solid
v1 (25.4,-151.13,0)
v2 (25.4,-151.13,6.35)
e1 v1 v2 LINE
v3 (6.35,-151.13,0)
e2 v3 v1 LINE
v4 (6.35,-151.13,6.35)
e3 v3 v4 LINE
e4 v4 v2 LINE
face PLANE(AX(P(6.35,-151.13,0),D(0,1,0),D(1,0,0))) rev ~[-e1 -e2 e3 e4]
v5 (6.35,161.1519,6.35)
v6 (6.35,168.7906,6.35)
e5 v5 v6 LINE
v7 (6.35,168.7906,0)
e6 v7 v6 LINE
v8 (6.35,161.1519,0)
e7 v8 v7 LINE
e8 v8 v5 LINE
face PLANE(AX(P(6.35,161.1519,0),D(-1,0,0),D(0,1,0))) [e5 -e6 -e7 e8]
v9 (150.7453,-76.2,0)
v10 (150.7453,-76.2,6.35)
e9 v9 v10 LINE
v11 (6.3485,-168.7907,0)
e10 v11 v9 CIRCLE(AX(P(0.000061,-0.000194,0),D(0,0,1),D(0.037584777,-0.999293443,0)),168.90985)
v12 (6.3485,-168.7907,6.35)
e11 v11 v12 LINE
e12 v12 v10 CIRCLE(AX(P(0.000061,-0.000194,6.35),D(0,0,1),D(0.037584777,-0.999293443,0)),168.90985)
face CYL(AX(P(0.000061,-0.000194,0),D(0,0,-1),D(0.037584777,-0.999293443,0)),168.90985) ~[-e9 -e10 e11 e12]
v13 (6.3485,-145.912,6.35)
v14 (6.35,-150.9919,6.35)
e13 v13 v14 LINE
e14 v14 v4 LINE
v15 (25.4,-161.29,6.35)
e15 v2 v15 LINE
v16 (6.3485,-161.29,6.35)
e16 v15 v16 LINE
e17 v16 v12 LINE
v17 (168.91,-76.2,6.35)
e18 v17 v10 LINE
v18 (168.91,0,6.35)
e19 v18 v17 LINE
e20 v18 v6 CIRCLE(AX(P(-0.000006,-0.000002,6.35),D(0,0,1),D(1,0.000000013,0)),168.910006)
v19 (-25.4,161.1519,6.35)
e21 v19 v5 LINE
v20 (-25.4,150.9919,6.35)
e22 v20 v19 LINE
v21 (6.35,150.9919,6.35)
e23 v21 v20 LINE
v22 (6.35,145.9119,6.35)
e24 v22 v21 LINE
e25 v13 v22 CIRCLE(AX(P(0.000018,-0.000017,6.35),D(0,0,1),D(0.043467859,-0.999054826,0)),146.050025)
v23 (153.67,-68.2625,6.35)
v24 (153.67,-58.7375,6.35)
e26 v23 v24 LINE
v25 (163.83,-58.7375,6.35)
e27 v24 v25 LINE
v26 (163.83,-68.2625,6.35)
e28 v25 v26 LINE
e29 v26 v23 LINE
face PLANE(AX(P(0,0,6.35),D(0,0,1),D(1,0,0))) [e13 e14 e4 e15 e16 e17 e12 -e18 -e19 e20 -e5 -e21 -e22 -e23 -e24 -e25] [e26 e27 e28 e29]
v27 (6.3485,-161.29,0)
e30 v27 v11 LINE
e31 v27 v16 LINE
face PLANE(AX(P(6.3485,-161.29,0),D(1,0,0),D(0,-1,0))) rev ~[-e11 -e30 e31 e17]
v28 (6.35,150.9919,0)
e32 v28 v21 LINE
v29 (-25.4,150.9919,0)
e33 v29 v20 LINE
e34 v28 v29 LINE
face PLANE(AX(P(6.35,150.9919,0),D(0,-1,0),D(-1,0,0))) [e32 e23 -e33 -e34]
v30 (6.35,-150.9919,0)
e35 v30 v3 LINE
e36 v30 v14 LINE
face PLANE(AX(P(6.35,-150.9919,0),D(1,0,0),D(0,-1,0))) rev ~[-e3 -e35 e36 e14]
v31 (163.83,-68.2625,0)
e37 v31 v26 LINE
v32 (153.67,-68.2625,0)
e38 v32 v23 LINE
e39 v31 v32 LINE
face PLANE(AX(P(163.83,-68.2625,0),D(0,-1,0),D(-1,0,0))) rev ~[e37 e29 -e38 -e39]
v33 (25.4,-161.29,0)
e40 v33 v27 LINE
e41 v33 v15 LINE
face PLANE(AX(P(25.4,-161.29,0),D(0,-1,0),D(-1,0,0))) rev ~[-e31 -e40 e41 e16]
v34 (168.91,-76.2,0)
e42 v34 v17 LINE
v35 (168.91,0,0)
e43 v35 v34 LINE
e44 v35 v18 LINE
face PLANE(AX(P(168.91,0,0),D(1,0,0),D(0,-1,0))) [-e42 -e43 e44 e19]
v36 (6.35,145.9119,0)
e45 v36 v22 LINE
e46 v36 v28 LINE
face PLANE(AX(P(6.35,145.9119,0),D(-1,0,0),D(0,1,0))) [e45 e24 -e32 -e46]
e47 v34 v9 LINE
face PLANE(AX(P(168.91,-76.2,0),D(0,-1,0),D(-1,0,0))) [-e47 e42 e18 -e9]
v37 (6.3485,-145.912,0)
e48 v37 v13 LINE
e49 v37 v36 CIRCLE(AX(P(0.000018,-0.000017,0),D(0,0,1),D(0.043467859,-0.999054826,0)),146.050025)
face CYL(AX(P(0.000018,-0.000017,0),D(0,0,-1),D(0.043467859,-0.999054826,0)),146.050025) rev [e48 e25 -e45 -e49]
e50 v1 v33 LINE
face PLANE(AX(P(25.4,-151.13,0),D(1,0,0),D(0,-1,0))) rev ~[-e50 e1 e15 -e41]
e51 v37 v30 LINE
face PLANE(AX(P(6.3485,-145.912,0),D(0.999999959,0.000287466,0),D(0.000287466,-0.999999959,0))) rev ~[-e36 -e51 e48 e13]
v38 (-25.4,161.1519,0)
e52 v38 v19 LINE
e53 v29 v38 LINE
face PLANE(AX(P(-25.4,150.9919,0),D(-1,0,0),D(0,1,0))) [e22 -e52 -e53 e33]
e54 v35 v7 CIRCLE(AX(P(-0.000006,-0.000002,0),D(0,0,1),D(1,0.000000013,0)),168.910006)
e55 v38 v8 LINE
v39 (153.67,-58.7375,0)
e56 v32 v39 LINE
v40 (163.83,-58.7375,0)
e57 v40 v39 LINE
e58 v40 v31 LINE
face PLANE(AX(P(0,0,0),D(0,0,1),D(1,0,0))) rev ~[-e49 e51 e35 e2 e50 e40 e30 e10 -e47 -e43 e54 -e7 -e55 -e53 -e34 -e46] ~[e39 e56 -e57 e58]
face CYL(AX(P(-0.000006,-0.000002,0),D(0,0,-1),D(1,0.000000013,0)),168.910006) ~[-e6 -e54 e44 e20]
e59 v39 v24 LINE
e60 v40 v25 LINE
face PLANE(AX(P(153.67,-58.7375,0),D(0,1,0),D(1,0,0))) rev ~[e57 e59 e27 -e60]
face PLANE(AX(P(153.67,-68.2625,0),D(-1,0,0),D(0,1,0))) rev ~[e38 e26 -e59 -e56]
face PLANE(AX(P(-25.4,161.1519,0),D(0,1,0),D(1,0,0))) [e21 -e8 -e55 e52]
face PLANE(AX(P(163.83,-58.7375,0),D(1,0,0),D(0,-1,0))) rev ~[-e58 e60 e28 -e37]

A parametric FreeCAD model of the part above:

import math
import FreeCAD as App
import Part
import Sketcher
Q = App.Units.Quantity

doc = App.newDocument("Part")
params = doc.addObject("Spreadsheet::Sheet", "Params")
for row, (alias, value) in enumerate([
    ("sketch1_height", "3 in"),
    ("sketch1_radius", "5.75 in"),
    ("sketch1_width", "0.4 in"),
    ("sketch1_height2", "0.2 in"),
    ("sketch1_length", "0.2 in"),
    ("pad1_length", "0.25 in"),
], start=1):
    params.set(f"A{row}", alias)
    params.set(f"B{row}", "=" + value)
    params.setAlias(f"B{row}", alias)

body = doc.addObject("PartDesign::Body", "Body")

# Sketch on XY plane
sketch1 = doc.addObject("Sketcher::SketchObject", "Sketch")
body.addObject(sketch1)
sketch1.AttachmentSupport = (doc.XY_Plane, [""])
sketch1.MapMode = "FlatFace"
sketch1.addGeometry([
    Part.ArcOfCircle(Part.Circle(App.Vector(0, 0, 0), App.Vector(0, 0, 1), 146.050043), math.radians(-87.508683), math.radians(87.508094)),  # 0
    Part.LineSegment(App.Vector(6.3485, -145.912, 0), App.Vector(6.34996, -150.9919, 0)),  # 1
    Part.LineSegment(App.Vector(6.35, -150.9919, 0), App.Vector(6.35, -151.13, 0)),  # 2
    Part.LineSegment(App.Vector(6.35, -151.13, 0), App.Vector(25.4, -151.13, 0)),  # 3
    Part.LineSegment(App.Vector(25.4, -151.13, 0), App.Vector(25.4, -161.29, 0)),  # 4
    Part.LineSegment(App.Vector(25.4, -161.29, 0), App.Vector(6.3485, -161.29, 0)),  # 5
    Part.LineSegment(App.Vector(6.3485, -161.29, 0), App.Vector(6.3485, -168.7907, 0)),  # 6
    Part.ArcOfCircle(Part.Circle(App.Vector(0, 0, 0), App.Vector(0, 0, 1), 168.91), math.radians(-87.846025), math.radians(-26.816068)),  # 7
    Part.LineSegment(App.Vector(150.7453, -76.2, 0), App.Vector(168.91, -76.2, 0)),  # 8
    Part.LineSegment(App.Vector(168.91, -76.2, 0), App.Vector(168.91, 0, 0)),  # 9
    Part.ArcOfCircle(Part.Circle(App.Vector(0, 0, 0), App.Vector(0, 0, 1), 168.91), math.radians(0), math.radians(87.845516)),  # 10
    Part.LineSegment(App.Vector(6.35, 168.7906, 0), App.Vector(6.35, 161.1519, 0)),  # 11
    Part.LineSegment(App.Vector(6.35, 161.1519, 0), App.Vector(-25.4, 161.1519, 0)),  # 12
    Part.LineSegment(App.Vector(-25.4, 161.1519, 0), App.Vector(-25.4, 150.9919, 0)),  # 13
    Part.LineSegment(App.Vector(-25.4, 150.9919, 0), App.Vector(6.35, 150.9919, 0)),  # 14
    Part.LineSegment(App.Vector(6.35, 150.9919, 0), App.Vector(6.35, 145.9119, 0)),  # 15
    Part.LineSegment(App.Vector(153.67, -58.7375, 0), App.Vector(163.83, -58.7375, 0)),  # 16
    Part.LineSegment(App.Vector(163.83, -58.7375, 0), App.Vector(163.83, -68.2625, 0)),  # 17
    Part.LineSegment(App.Vector(163.83, -68.2625, 0), App.Vector(153.67, -68.2625, 0)),  # 18
    Part.LineSegment(App.Vector(153.67, -68.2625, 0), App.Vector(153.67, -58.7375, 0)),  # 19
], False)
sketch1.addConstraint([
    Sketcher.Constraint("Coincident", 0, 1, 1, 1),
    Sketcher.Constraint("Coincident", 1, 2, 2, 1),
    Sketcher.Constraint("Coincident", 2, 2, 3, 1),
    Sketcher.Constraint("Coincident", 3, 2, 4, 1),
    Sketcher.Constraint("Coincident", 4, 2, 5, 1),
    Sketcher.Constraint("Coincident", 5, 2, 6, 1),
    Sketcher.Constraint("Coincident", 6, 2, 7, 1),
    Sketcher.Constraint("Coincident", 7, 2, 8, 1),
    Sketcher.Constraint("Coincident", 8, 2, 9, 1),
    Sketcher.Constraint("Tangent", 9, 2, 10, 1),
    Sketcher.Constraint("Coincident", 10, 2, 11, 1),
    Sketcher.Constraint("Coincident", 11, 2, 12, 1),
    Sketcher.Constraint("Coincident", 12, 2, 13, 1),
    Sketcher.Constraint("Coincident", 13, 2, 14, 1),
    Sketcher.Constraint("Coincident", 14, 2, 15, 1),
    Sketcher.Constraint("Coincident", 15, 2, 0, 2),
    Sketcher.Constraint("Coincident", 16, 2, 17, 1),
    Sketcher.Constraint("Coincident", 17, 2, 18, 1),
    Sketcher.Constraint("Coincident", 18, 2, 19, 1),
    Sketcher.Constraint("Coincident", 19, 2, 16, 1),
    Sketcher.Constraint("Vertical", 2),
    Sketcher.Constraint("Horizontal", 3),
    Sketcher.Constraint("Vertical", 4),
    Sketcher.Constraint("Horizontal", 5),
    Sketcher.Constraint("Vertical", 6),
    Sketcher.Constraint("Horizontal", 8),
    Sketcher.Constraint("Vertical", 9),
    Sketcher.Constraint("Vertical", 11),
    Sketcher.Constraint("Horizontal", 12),
    Sketcher.Constraint("Vertical", 13),
    Sketcher.Constraint("Horizontal", 14),
    Sketcher.Constraint("Vertical", 15),
    Sketcher.Constraint("Horizontal", 16),
    Sketcher.Constraint("Vertical", 17),
    Sketcher.Constraint("Horizontal", 18),
    Sketcher.Constraint("Vertical", 19),
    Sketcher.Constraint("Coincident", 0, 3, -1, 1),
    Sketcher.Constraint("Coincident", 7, 3, -1, 1),
    Sketcher.Constraint("Coincident", 10, 3, -1, 1),
    Sketcher.Constraint("Equal", 7, 10),
    Sketcher.Constraint("Symmetric", 1, 2, 14, 2, -1),
    Sketcher.Constraint("Vertical", 0, 1, 5, 2),
    Sketcher.Constraint("Vertical", 2, 2, 10, 2),
    Sketcher.Constraint("Equal", 18, 4),
    Sketcher.Constraint("Equal", 4, 13),
    Sketcher.Constraint("DistanceY", 9, 1, 9, 2, Q("3 in")),
    Sketcher.Constraint("Radius", 0, Q("5.75 in")),
    Sketcher.Constraint("DistanceX", 16, 1, 16, 2, Q("0.4 in")),
    Sketcher.Constraint("DistanceY", 15, 2, 15, 1, Q("0.2 in")),
    Sketcher.Constraint("DistanceX", -1, 1, 3, 2, Q("1 in")),
    Sketcher.Constraint("DistanceX", 12, 2, -1, 1, Q("1 in")),
    Sketcher.Constraint("Distance", 1, Q("0.2 in")),
    Sketcher.Constraint("DistanceX", 12, 2, 12, 1, Q("1.25 in")),
    Sketcher.Constraint("DistanceX", 16, 2, 8, 2, Q("0.2 in")),
    Sketcher.Constraint("DistanceY", 17, 2, 17, 1, Q("0.375 in")),
    Sketcher.Constraint("Radius", 7, Q("6.65 in")),
    Sketcher.Constraint("DistanceY", 6, 2, 6, 1, Q("0.2953 in")),
    Sketcher.Constraint("DistanceY", 16, 2, -1, 1, Q("2.3125 in")),
])
sketch1.setExpression("Constraints[45]", "Params.sketch1_height")
sketch1.setExpression("Constraints[46]", "Params.sketch1_radius")
sketch1.setExpression("Constraints[47]", "Params.sketch1_width")
sketch1.setExpression("Constraints[48]", "Params.sketch1_height2")
sketch1.setExpression("Constraints[51]", "Params.sketch1_length")
pad1 = doc.addObject("PartDesign::Pad", "Pad")
body.addObject(pad1)
pad1.Profile = sketch1
pad1.setExpression("Length", "Params.pad1_length")

doc.recompute()
